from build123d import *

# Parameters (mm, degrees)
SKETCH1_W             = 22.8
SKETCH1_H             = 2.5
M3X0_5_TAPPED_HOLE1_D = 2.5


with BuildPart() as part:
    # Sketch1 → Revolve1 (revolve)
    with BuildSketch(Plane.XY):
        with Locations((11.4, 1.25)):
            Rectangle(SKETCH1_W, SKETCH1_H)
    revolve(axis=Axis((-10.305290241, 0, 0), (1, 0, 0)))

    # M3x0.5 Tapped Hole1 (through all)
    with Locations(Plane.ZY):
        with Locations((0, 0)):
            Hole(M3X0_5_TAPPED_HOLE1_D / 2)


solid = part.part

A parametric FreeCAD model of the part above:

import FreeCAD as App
import Part
import Sketcher

V = App.Vector
Q = App.Units.Quantity

doc = App.newDocument("Part")
params = doc.addObject("Spreadsheet::Sheet", "Params")
for row, (alias, value) in enumerate([
    ("sketch1_width", "22.8 mm"),
    ("sketch1_height", "2.5 mm"),
    ("revolution_angle", "360 deg"),
    ("sketch2_diameter", "2.5 mm"),
    ("hole_diameter", "2.5 mm"),
], start=1):
    params.set(f"A{row}", alias)
    params.set(f"B{row}", "=" + value)
    params.setAlias(f"B{row}", alias)

body = doc.addObject("PartDesign::Body", "Body")

# Sketch on XY plane
sketch1 = body.newObject("Sketcher::SketchObject", "Sketch")
sketch1.AttachmentSupport = (doc.getObject("XY_Plane"), [""])
sketch1.MapMode = "FlatFace"
sketch1.addGeometry([
    Part.LineSegment(V(0, 2.5, 0), V(0, 0, 0)),
    Part.LineSegment(V(0, 0, 0), V(22.8, 0, 0)),
    Part.LineSegment(V(22.8, 0, 0), V(22.8, 2.5, 0)),
    Part.LineSegment(V(22.8, 2.5, 0), V(0, 2.5, 0)),
], False)
sketch1.addConstraint([
    Sketcher.Constraint("Coincident", 0, 2, 1, 1),
    Sketcher.Constraint("Coincident", 1, 2, 2, 1),
    Sketcher.Constraint("Coincident", 2, 2, 3, 1),
    Sketcher.Constraint("Coincident", 3, 2, 0, 1),
    Sketcher.Constraint("Vertical", 0),
    Sketcher.Constraint("Horizontal", 1),
    Sketcher.Constraint("Vertical", 2),
    Sketcher.Constraint("Horizontal", 3),
    Sketcher.Constraint("Coincident", 0, 2, -1, 1),
    Sketcher.Constraint("DistanceX", 1, 1, 1, 2, Q("22.8 mm")),
    Sketcher.Constraint("DistanceY", 0, 2, 0, 1, Q("2.5 mm")),
])
sketch1.setExpression("Constraints[9]", "Params.sketch1_width")
sketch1.setExpression("Constraints[10]", "Params.sketch1_height")
revolution = body.newObject("PartDesign::Revolution", "Revolution")
revolution.Profile = sketch1
revolution.ReferenceAxis = (sketch1, ["H_Axis"])
revolution.setExpression("Angle", "Params.revolution_angle")

# Sketch on YZ plane
sketch2 = body.newObject("Sketcher::SketchObject", "Sketch001")
sketch2.AttachmentSupport = (doc.getObject("YZ_Plane"), [""])
sketch2.MapMode = "FlatFace"
sketch2.addGeometry(Part.Circle(V(0, 0, 0), V(0, 0, 1), 1.2), False)
sketch2.addConstraint([
    Sketcher.Constraint("Coincident", 0, 3, -1, 1),
    Sketcher.Constraint("Diameter", 0, Q("2.5 mm")),
])
sketch2.setExpression("Constraints[1]", "Params.sketch2_diameter")
doc.recompute()
hole = body.newObject("PartDesign::Hole", "Hole")
hole.Profile = sketch2
hole.ThreadType = "None"
hole.setExpression("Diameter", "Params.hole_diameter")
hole.DepthType = "ThroughAll"
hole.Reversed = True

doc.recompute()
